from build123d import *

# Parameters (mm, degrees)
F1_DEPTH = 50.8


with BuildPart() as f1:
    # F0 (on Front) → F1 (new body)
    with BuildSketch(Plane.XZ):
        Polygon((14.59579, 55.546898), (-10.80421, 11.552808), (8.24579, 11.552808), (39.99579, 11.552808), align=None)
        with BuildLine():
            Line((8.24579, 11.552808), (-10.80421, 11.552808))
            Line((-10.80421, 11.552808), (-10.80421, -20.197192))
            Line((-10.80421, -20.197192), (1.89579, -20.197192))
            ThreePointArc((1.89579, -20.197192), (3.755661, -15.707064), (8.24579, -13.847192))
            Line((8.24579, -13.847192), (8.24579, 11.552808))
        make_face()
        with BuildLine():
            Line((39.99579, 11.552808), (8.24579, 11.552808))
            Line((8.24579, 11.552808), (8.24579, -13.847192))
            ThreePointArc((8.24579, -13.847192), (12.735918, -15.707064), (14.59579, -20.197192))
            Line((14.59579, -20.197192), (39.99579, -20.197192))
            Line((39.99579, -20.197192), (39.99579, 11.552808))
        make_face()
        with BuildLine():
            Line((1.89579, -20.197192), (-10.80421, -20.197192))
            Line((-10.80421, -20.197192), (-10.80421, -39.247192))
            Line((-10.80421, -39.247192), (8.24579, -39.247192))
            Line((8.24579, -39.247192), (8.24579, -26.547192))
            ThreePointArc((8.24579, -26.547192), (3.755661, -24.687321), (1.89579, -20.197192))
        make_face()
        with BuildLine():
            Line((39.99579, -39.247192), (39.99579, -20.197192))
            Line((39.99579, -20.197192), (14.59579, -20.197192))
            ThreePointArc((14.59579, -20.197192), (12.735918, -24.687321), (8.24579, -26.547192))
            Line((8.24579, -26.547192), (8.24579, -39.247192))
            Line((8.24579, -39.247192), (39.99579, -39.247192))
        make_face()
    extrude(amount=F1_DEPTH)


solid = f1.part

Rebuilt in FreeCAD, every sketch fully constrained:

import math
import FreeCAD as App
import Part
import Sketcher
Q = App.Units.Quantity

doc = App.newDocument("Part")
body = doc.addObject("PartDesign::Body", "Body")

sketch1 = doc.addObject("Sketcher::SketchObject", "Sketch")
body.addObject(sketch1)
sketch1.AttachmentSupport = (doc.XZ_Plane, [""])
sketch1.MapMode = "FlatFace"
sketch1.addGeometry(Part.LineSegment(App.Vector(14.59579, 55.546898, 0), App.Vector(-10.80421, 11.552808, 0)), False)
sketch1.addGeometry(Part.LineSegment(App.Vector(-10.80421, 11.552808, 0), App.Vector(-10.80421, -39.247192, 0)), False)
sketch1.addGeometry(Part.LineSegment(App.Vector(-10.80421, -39.247192, 0), App.Vector(39.99579, -39.247192, 0)), False)
sketch1.addGeometry(Part.LineSegment(App.Vector(39.99579, -39.247192, 0), App.Vector(39.99579, 11.552808, 0)), False)
sketch1.addGeometry(Part.LineSegment(App.Vector(39.99579, 11.552808, 0), App.Vector(14.59579, 55.546898, 0)), False)
sketch1.addGeometry(Part.ArcOfCircle(Part.Circle(App.Vector(8.245787, -20.197195, 0), App.Vector(0, 0, 1), 6.349997), math.radians(179.999971), math.radians(270.000029)), False)
sketch1.addGeometry(Part.ArcOfCircle(Part.Circle(App.Vector(8.245788, -20.197191, 0), App.Vector(0, 0, 1), 6.349998), math.radians(89.999986), math.radians(180.000014)), False)
sketch1.addGeometry(Part.ArcOfCircle(Part.Circle(App.Vector(8.24579, -20.197192, 0), App.Vector(0, 0, 1), 6.35), math.radians(0.000002), math.radians(89.999998)), False)
sketch1.addGeometry(Part.ArcOfCircle(Part.Circle(App.Vector(8.245791, -20.197194, 0), App.Vector(0, 0, 1), 6.349998), math.radians(-90.000014), math.radians(0.000014)), False)
sketch1.addConstraint(Sketcher.Constraint("Coincident", 0, 2, 1, 1))
sketch1.addConstraint(Sketcher.Constraint("Coincident", 1, 2, 2, 1))
sketch1.addConstraint(Sketcher.Constraint("Coincident", 2, 2, 3, 1))
sketch1.addConstraint(Sketcher.Constraint("Coincident", 3, 2, 4, 1))
sketch1.addConstraint(Sketcher.Constraint("Coincident", 4, 2, 0, 1))
sketch1.addConstraint(Sketcher.Constraint("Tangent", 5, 1, 6, 2))
sketch1.addConstraint(Sketcher.Constraint("Tangent", 6, 1, 7, 2))
sketch1.addConstraint(Sketcher.Constraint("Tangent", 7, 1, 8, 2))
sketch1.addConstraint(Sketcher.Constraint("Tangent", 8, 1, 5, 2))
sketch1.addConstraint(Sketcher.Constraint("Vertical", 1))
sketch1.addConstraint(Sketcher.Constraint("Horizontal", 2))
sketch1.addConstraint(Sketcher.Constraint("Vertical", 3))
sketch1.addConstraint(Sketcher.Constraint("Equal", 5, 6))
sketch1.addConstraint(Sketcher.Constraint("Horizontal", 0, 2, 3, 2))
sketch1.addConstraint(Sketcher.Constraint("Horizontal", 8, 3, 5, 1))
sketch1.addConstraint(Sketcher.Constraint("Horizontal", 5, 1, 7, 1))
sketch1.addConstraint(Sketcher.Constraint("Vertical", 8, 3, 6, 1))
sketch1.addConstraint(Sketcher.Constraint("Vertical", 4, 2, 7, 1))
sketch1.addConstraint(Sketcher.Constraint("Vertical", 6, 1, 8, 1))
sketch1.addConstraint(Sketcher.Constraint("Equal", 2, 1))
sketch1.addConstraint(Sketcher.Constraint("Equal", 0, 4))
sketch1.addConstraint(Sketcher.Constraint("DistanceX", 2, 1, 2, 2, Q("2 in")))
sketch1.addConstraint(Sketcher.Constraint("Radius", 5, Q("0.2499999 in")))
sketch1.addConstraint(Sketcher.Constraint("Distance", 0, Q("2 in")))
sketch1.addConstraint(Sketcher.Constraint("DistanceY", 6, 3, 0, 2, Q("1.2499999 in")))
sketch1.addConstraint(Sketcher.Constraint("DistanceX", -1, 1, 6, 3, Q("8.245788 mm")))
sketch1.addConstraint(Sketcher.Constraint("DistanceY", 6, 3, -1, 1, Q("20.197191 mm")))
pad1 = doc.addObject("PartDesign::Pad", "Pad")
body.addObject(pad1)
pad1.Profile = sketch1
pad1.Length = Q("2 in")

doc.recompute()
